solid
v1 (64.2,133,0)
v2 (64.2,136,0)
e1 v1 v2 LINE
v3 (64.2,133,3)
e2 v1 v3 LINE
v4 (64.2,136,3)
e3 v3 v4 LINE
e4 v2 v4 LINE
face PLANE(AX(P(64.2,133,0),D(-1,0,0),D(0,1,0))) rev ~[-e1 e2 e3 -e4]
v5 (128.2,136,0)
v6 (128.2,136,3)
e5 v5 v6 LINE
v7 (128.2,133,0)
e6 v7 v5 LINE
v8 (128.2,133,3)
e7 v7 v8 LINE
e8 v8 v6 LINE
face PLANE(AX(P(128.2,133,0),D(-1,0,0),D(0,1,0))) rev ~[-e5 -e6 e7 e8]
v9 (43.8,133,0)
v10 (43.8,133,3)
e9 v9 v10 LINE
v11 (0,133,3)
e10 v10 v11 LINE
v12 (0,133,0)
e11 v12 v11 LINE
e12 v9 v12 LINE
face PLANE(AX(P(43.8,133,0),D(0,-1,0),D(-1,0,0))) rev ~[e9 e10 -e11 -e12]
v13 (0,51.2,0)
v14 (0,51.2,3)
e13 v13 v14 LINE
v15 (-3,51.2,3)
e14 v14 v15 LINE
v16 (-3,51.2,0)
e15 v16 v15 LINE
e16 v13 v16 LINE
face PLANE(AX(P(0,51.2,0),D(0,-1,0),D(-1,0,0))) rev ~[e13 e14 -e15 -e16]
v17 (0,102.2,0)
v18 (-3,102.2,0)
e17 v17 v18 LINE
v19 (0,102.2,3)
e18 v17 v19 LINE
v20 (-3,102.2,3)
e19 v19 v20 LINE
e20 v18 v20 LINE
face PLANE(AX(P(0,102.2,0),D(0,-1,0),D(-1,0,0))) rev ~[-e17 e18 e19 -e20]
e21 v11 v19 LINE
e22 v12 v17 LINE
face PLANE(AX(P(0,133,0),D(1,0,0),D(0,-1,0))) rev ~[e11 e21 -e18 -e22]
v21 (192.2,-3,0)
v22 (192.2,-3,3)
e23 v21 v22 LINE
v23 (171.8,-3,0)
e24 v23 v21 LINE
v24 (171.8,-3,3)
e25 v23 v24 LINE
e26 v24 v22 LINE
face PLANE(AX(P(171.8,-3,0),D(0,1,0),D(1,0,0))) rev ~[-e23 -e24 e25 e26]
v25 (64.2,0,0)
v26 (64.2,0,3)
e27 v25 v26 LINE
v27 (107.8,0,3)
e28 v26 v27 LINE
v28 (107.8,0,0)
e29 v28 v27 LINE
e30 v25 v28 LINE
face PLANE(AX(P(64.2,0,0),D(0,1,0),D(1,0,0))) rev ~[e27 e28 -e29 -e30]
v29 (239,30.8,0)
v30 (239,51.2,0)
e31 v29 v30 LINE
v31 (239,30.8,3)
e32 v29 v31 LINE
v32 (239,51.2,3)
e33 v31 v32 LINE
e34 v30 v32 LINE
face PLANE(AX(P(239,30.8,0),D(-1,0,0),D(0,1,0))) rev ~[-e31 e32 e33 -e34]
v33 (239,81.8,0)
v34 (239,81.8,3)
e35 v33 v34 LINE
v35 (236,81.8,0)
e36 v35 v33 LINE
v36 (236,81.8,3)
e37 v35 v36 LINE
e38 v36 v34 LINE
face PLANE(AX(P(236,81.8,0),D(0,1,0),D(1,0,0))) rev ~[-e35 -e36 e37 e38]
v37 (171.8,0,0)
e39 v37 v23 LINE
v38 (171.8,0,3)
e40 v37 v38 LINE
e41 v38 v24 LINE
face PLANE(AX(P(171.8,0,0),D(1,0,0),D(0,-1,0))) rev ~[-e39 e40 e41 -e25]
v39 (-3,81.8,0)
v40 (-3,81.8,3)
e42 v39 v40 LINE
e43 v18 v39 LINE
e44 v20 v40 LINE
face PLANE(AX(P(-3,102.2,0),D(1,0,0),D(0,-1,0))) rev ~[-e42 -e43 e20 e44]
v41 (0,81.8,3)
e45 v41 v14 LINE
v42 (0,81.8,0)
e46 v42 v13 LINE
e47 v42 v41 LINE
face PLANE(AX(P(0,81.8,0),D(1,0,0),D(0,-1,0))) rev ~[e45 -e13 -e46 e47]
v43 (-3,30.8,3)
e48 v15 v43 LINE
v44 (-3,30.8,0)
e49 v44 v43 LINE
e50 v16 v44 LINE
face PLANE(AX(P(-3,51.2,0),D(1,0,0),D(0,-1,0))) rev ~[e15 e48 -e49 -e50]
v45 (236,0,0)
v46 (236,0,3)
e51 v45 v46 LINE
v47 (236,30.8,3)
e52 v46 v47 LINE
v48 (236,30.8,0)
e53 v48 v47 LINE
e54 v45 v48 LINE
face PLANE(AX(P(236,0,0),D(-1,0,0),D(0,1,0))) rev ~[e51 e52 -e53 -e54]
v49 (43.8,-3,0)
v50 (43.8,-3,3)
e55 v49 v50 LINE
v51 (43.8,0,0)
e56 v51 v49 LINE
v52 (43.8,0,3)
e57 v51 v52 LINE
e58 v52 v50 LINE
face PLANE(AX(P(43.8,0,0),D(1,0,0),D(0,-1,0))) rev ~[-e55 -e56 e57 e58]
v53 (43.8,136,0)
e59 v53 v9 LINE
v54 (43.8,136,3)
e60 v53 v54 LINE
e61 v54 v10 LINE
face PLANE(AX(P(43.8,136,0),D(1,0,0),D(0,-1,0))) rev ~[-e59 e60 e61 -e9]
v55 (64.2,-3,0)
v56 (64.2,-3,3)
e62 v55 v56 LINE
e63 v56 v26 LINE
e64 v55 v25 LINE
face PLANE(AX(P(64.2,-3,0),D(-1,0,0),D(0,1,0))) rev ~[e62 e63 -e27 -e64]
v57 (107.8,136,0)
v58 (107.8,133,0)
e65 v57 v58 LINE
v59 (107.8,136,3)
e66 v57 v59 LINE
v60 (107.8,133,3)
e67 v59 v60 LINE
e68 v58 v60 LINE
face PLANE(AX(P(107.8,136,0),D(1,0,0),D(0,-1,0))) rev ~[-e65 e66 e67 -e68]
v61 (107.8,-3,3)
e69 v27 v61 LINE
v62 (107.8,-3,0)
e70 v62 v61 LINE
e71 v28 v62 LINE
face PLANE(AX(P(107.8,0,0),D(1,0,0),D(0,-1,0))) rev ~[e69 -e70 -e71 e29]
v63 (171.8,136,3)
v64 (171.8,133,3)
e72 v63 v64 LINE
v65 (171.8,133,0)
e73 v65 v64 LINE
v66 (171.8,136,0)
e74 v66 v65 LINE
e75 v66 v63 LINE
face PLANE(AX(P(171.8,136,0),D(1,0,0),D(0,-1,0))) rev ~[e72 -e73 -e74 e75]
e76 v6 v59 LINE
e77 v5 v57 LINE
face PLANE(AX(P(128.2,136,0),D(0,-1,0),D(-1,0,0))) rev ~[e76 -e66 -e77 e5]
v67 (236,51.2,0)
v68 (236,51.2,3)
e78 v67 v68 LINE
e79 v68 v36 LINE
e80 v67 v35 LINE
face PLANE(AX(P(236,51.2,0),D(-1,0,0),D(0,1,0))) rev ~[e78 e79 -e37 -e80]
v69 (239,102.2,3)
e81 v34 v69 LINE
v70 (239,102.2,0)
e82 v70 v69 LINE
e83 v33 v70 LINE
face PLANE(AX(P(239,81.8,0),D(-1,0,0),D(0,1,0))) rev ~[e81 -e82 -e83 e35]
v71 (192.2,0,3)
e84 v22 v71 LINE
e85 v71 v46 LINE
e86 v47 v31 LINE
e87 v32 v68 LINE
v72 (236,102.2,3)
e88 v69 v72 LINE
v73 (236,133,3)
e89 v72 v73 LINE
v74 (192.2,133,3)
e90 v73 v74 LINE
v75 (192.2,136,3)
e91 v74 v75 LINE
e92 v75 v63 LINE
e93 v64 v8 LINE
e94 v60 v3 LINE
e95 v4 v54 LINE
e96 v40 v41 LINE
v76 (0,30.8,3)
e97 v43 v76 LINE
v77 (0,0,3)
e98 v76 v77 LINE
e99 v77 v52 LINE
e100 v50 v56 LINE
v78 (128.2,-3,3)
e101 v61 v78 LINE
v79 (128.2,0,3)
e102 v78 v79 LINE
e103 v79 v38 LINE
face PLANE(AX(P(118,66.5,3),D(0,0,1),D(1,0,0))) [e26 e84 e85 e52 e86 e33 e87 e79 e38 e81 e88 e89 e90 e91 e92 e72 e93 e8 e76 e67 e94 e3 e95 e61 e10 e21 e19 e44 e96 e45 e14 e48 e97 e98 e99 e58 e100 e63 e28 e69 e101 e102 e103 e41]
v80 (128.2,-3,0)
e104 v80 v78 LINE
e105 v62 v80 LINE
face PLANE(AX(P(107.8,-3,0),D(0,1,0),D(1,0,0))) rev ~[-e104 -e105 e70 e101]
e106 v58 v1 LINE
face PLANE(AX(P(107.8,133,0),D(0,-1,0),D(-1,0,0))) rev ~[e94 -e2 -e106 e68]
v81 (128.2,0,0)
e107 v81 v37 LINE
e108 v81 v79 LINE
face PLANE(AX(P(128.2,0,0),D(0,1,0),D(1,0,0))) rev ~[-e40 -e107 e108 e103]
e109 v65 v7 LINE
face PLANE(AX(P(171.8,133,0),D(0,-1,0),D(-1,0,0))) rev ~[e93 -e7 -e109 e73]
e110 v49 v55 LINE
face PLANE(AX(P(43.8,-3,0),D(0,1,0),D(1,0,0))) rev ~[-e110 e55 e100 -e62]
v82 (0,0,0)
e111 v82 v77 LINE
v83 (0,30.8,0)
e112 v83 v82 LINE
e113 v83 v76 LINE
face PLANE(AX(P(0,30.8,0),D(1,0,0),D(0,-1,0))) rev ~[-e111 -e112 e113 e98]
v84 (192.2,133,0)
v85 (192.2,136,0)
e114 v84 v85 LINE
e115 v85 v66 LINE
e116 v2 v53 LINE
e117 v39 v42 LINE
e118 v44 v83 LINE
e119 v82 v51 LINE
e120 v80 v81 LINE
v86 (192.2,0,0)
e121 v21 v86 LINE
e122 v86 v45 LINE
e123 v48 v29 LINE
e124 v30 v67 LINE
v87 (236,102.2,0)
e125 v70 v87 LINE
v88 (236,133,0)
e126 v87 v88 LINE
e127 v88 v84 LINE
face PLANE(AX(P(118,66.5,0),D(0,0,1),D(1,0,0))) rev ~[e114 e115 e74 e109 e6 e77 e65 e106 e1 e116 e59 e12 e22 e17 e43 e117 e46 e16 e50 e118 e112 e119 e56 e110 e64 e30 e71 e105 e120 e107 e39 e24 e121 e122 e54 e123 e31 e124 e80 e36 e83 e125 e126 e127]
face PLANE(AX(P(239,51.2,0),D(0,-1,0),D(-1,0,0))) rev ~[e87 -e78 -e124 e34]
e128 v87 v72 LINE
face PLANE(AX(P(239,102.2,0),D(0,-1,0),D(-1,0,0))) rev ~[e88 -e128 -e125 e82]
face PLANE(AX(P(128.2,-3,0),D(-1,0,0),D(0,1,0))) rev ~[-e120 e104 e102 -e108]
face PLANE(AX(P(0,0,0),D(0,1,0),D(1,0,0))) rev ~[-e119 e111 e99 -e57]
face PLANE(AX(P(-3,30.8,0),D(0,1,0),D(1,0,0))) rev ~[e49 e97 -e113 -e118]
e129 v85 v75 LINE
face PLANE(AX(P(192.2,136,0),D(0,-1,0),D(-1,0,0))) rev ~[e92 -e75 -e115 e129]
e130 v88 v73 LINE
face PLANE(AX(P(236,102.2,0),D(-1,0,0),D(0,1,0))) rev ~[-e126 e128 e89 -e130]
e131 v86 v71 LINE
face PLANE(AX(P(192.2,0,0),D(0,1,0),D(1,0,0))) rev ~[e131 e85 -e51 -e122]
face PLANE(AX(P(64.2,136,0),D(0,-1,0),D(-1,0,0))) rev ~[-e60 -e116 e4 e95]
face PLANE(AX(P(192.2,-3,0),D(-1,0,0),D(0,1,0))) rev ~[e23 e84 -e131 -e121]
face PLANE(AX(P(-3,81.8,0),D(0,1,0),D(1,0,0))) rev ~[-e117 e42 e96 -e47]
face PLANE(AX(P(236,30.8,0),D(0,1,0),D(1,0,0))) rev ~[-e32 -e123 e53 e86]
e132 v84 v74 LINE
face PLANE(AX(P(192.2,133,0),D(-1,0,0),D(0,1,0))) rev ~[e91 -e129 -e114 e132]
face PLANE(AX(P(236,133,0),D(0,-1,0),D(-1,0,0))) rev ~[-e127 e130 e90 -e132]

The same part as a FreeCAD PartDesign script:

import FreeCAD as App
import Part
import Sketcher

V = App.Vector

doc = App.newDocument("Part")
body = doc.addObject("PartDesign::Body", "Body")

sketch1 = body.newObject("Sketcher::SketchObject", "Sketch")
sketch1.AttachmentSupport = (doc.getObject("XY_Plane"), [""])
sketch1.MapMode = "FlatFace"
sketch1.addGeometry([
    Part.LineSegment(V(43.8, 133, 0), V(0, 133, 0)),
    Part.LineSegment(V(0, 133, 0), V(0, 102.2, 0)),
    Part.LineSegment(V(0, 102.2, 0), V(-3, 102.2, 0)),
    Part.LineSegment(V(-3, 102.2, 0), V(-3, 81.8, 0)),
    Part.LineSegment(V(-3, 81.8, 0), V(0, 81.8, 0)),
    Part.LineSegment(V(0, 81.8, 0), V(0, 51.2, 0)),
    Part.LineSegment(V(0, 51.2, 0), V(-3, 51.2, 0)),
    Part.LineSegment(V(-3, 51.2, 0), V(-3, 30.8, 0)),
    Part.LineSegment(V(-3, 30.8, 0), V(0, 30.8, 0)),
    Part.LineSegment(V(0, 30.8, 0), V(0, 0, 0)),
    Part.LineSegment(V(0, 0, 0), V(43.8, 0, 0)),
    Part.LineSegment(V(43.8, 0, 0), V(43.8, -3, 0)),
    Part.LineSegment(V(43.8, -3, 0), V(64.2, -3, 0)),
    Part.LineSegment(V(64.2, -3, 0), V(64.2, 0, 0)),
    Part.LineSegment(V(64.2, 0, 0), V(107.8, 0, 0)),
    Part.LineSegment(V(107.8, 0, 0), V(107.8, -3, 0)),
    Part.LineSegment(V(107.8, -3, 0), V(128.2, -3, 0)),
    Part.LineSegment(V(128.2, -3, 0), V(128.2, 0, 0)),
    Part.LineSegment(V(128.2, 0, 0), V(171.8, 0, 0)),
    Part.LineSegment(V(171.8, 0, 0), V(171.8, -3, 0)),
    Part.LineSegment(V(171.8, -3, 0), V(192.2, -3, 0)),
    Part.LineSegment(V(192.2, -3, 0), V(192.2, 0, 0)),
    Part.LineSegment(V(192.2, 0, 0), V(236, 0, 0)),
    Part.LineSegment(V(236, 0, 0), V(236, 30.8, 0)),
    Part.LineSegment(V(236, 30.8, 0), V(239, 30.8, 0)),
    Part.LineSegment(V(239, 30.8, 0), V(239, 51.2, 0)),
    Part.LineSegment(V(239, 51.2, 0), V(236, 51.2, 0)),
    Part.LineSegment(V(236, 51.2, 0), V(236, 81.8, 0)),
    Part.LineSegment(V(236, 81.8, 0), V(239, 81.8, 0)),
    Part.LineSegment(V(239, 81.8, 0), V(239, 102.2, 0)),
    Part.LineSegment(V(239, 102.2, 0), V(236, 102.2, 0)),
    Part.LineSegment(V(236, 102.2, 0), V(236, 133, 0)),
    Part.LineSegment(V(236, 133, 0), V(192.2, 133, 0)),
    Part.LineSegment(V(192.2, 133, 0), V(192.2, 136, 0)),
    Part.LineSegment(V(192.2, 136, 0), V(171.8, 136, 0)),
    Part.LineSegment(V(171.8, 136, 0), V(171.8, 133, 0)),
    Part.LineSegment(V(171.8, 133, 0), V(128.2, 133, 0)),
    Part.LineSegment(V(128.2, 133, 0), V(128.2, 136, 0)),
    Part.LineSegment(V(128.2, 136, 0), V(107.8, 136, 0)),
    Part.LineSegment(V(107.8, 136, 0), V(107.8, 133, 0)),
    Part.LineSegment(V(107.8, 133, 0), V(64.2, 133, 0)),
    Part.LineSegment(V(64.2, 133, 0), V(64.2, 136, 0)),
    Part.LineSegment(V(64.2, 136, 0), V(43.8, 136, 0)),
    Part.LineSegment(V(43.8, 136, 0), V(43.8, 133, 0)),
], False)
sketch1.addConstraint([
    Sketcher.Constraint("Coincident", 0, 2, 1, 1),
    Sketcher.Constraint("Coincident", 1, 2, 2, 1),
    Sketcher.Constraint("Coincident", 2, 2, 3, 1),
    Sketcher.Constraint("Coincident", 3, 2, 4, 1),
    Sketcher.Constraint("Coincident", 4, 2, 5, 1),
    Sketcher.Constraint("Coincident", 5, 2, 6, 1),
    Sketcher.Constraint("Coincident", 6, 2, 7, 1),
    Sketcher.Constraint("Coincident", 7, 2, 8, 1),
    Sketcher.Constraint("Coincident", 8, 2, 9, 1),
    Sketcher.Constraint("Coincident", 9, 2, 10, 1),
    Sketcher.Constraint("Coincident", 10, 2, 11, 1),
    Sketcher.Constraint("Coincident", 11, 2, 12, 1),
    Sketcher.Constraint("Coincident", 12, 2, 13, 1),
    Sketcher.Constraint("Coincident", 13, 2, 14, 1),
    Sketcher.Constraint("Coincident", 14, 2, 15, 1),
    Sketcher.Constraint("Coincident", 15, 2, 16, 1),
    Sketcher.Constraint("Coincident", 16, 2, 17, 1),
    Sketcher.Constraint("Coincident", 17, 2, 18, 1),
    Sketcher.Constraint("Coincident", 18, 2, 19, 1),
    Sketcher.Constraint("Coincident", 19, 2, 20, 1),
    Sketcher.Constraint("Coincident", 20, 2, 21, 1),
    Sketcher.Constraint("Coincident", 21, 2, 22, 1),
    Sketcher.Constraint("Coincident", 22, 2, 23, 1),
    Sketcher.Constraint("Coincident", 23, 2, 24, 1),
    Sketcher.Constraint("Coincident", 24, 2, 25, 1),
    Sketcher.Constraint("Coincident", 25, 2, 26, 1),
    Sketcher.Constraint("Coincident", 26, 2, 27, 1),
    Sketcher.Constraint("Coincident", 27, 2, 28, 1),
    Sketcher.Constraint("Coincident", 28, 2, 29, 1),
    Sketcher.Constraint("Coincident", 29, 2, 30, 1),
    Sketcher.Constraint("Coincident", 30, 2, 31, 1),
    Sketcher.Constraint("Coincident", 31, 2, 32, 1),
    Sketcher.Constraint("Coincident", 32, 2, 33, 1),
    Sketcher.Constraint("Coincident", 33, 2, 34, 1),
    Sketcher.Constraint("Coincident", 34, 2, 35, 1),
    Sketcher.Constraint("Coincident", 35, 2, 36, 1),
    Sketcher.Constraint("Coincident", 36, 2, 37, 1),
    Sketcher.Constraint("Coincident", 37, 2, 38, 1),
    Sketcher.Constraint("Coincident", 38, 2, 39, 1),
    Sketcher.Constraint("Coincident", 39, 2, 40, 1),
    Sketcher.Constraint("Coincident", 40, 2, 41, 1),
    Sketcher.Constraint("Coincident", 41, 2, 42, 1),
    Sketcher.Constraint("Coincident", 42, 2, 43, 1),
    Sketcher.Constraint("Coincident", 43, 2, 0, 1),
    Sketcher.Constraint("Horizontal", 0),
    Sketcher.Constraint("Vertical", 1),
    Sketcher.Constraint("Horizontal", 2),
    Sketcher.Constraint("Vertical", 3),
    Sketcher.Constraint("Horizontal", 4),
    Sketcher.Constraint("Vertical", 5),
    Sketcher.Constraint("Horizontal", 6),
    Sketcher.Constraint("Vertical", 7),
    Sketcher.Constraint("Horizontal", 8),
    Sketcher.Constraint("Vertical", 9),
    Sketcher.Constraint("Horizontal", 10),
    Sketcher.Constraint("Vertical", 11),
    Sketcher.Constraint("Horizontal", 12),
    Sketcher.Constraint("Vertical", 13),
    Sketcher.Constraint("Horizontal", 14),
    Sketcher.Constraint("Vertical", 15),
    Sketcher.Constraint("Horizontal", 16),
    Sketcher.Constraint("Vertical", 17),
    Sketcher.Constraint("Horizontal", 18),
    Sketcher.Constraint("Vertical", 19),
    Sketcher.Constraint("Horizontal", 20),
    Sketcher.Constraint("Vertical", 21),
    Sketcher.Constraint("Horizontal", 22),
    Sketcher.Constraint("Vertical", 23),
    Sketcher.Constraint("Horizontal", 24),
    Sketcher.Constraint("Vertical", 25),
    Sketcher.Constraint("Horizontal", 26),
    Sketcher.Constraint("Vertical", 27),
    Sketcher.Constraint("Horizontal", 28),
    Sketcher.Constraint("Vertical", 29),
    Sketcher.Constraint("Horizontal", 30),
    Sketcher.Constraint("Vertical", 31),
    Sketcher.Constraint("Horizontal", 32),
    Sketcher.Constraint("Vertical", 33),
    Sketcher.Constraint("Horizontal", 34),
    Sketcher.Constraint("Vertical", 35),
    Sketcher.Constraint("Horizontal", 36),
    Sketcher.Constraint("Vertical", 37),
    Sketcher.Constraint("Horizontal", 38),
    Sketcher.Constraint("Vertical", 39),
    Sketcher.Constraint("Horizontal", 40),
    Sketcher.Constraint("Vertical", 41),
    Sketcher.Constraint("Horizontal", 42),
    Sketcher.Constraint("Vertical", 43),
    Sketcher.Constraint("Coincident", 9, 2, -1, 1),
    Sketcher.Constraint("PointOnObject", 0, 2, -2),
    Sketcher.Constraint("PointOnObject", 4, 2, -2),
    Sketcher.Constraint("PointOnObject", 13, 2, -1),
    Sketcher.Constraint("PointOnObject", 17, 2, -1),
    Sketcher.Constraint("PointOnObject", 21, 2, -1),
    Sketcher.Constraint("Horizontal", 12, 2, 15, 2),
    Sketcher.Constraint("Horizontal", 16, 2, 19, 2),
    Sketcher.Constraint("Horizontal", 8, 2, 23, 2),
    Sketcher.Constraint("Horizontal", 6, 2, 25, 2),
    Sketcher.Constraint("Horizontal", 4, 2, 27, 2),
    Sketcher.Constraint("Horizontal", 2, 2, 29, 2),
    Sketcher.Constraint("Horizontal", 0, 2, 31, 2),
    Sketcher.Constraint("Horizontal", 32, 2, 35, 2),
    Sketcher.Constraint("Horizontal", 34, 2, 37, 2),
    Sketcher.Constraint("Horizontal", 36, 2, 39, 2),
    Sketcher.Constraint("Horizontal", 38, 2, 41, 2),
    Sketcher.Constraint("Vertical", 3, 2, 6, 2),
    Sketcher.Constraint("Vertical", 23, 2, 26, 2),
    Sketcher.Constraint("Vertical", 25, 2, 28, 2),
    Sketcher.Constraint("Vertical", 27, 2, 30, 2),
    Sketcher.Constraint("Vertical", 21, 2, 32, 2),
    Sketcher.Constraint("Vertical", 19, 2, 34, 2),
    Sketcher.Constraint("Vertical", 17, 2, 36, 2),
    Sketcher.Constraint("Vertical", 15, 2, 38, 2),
    Sketcher.Constraint("Vertical", 13, 2, 40, 2),
    Sketcher.Constraint("Vertical", 11, 2, 42, 2),
    Sketcher.Constraint("Equal", 12, 16),
    Sketcher.Constraint("Equal", 14, 18),
    Sketcher.Constraint("Equal", 16, 20),
    Sketcher.Constraint("Equal", 10, 22),
    Sketcher.Constraint("Equal", 8, 24),
    Sketcher.Constraint("Equal", 42, 3),
    Sketcher.Constraint("Equal", 3, 7),
    Sketcher.Constraint("Equal", 1, 9),
    Sketcher.Constraint("Equal", 30, 11),
    Sketcher.Constraint("Equal", 21, 33),
    Sketcher.Constraint("DistanceX", 2, 2, 2, 1, 3.0),
    Sketcher.Constraint("DistanceX", 0, 2, 0, 1, 43.8),
    Sketcher.Constraint("DistanceX", 12, 1, 12, 2, 20.4),
    Sketcher.Constraint("DistanceX", 14, 1, 14, 2, 43.6),
    Sketcher.Constraint("DistanceY", 1, 2, 1, 1, 30.8),
    Sketcher.Constraint("DistanceY", 5, 2, 5, 1, 30.6),
])
pad1 = body.newObject("PartDesign::Pad", "Pad")
pad1.Profile = sketch1
pad1.Length = 3

doc.recompute()
